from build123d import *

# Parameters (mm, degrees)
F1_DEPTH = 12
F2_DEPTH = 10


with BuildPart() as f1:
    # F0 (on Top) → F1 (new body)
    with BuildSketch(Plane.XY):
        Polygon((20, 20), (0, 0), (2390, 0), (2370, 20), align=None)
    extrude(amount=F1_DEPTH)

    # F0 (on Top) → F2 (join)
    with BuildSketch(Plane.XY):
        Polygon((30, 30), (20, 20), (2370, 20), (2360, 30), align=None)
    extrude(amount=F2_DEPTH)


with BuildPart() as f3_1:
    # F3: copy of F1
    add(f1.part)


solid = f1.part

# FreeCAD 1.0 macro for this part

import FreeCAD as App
import Part
import Sketcher
Q = App.Units.Quantity


def add_polygon(sketch, points):
    """Adds a closed chain of lines whose ends are joined by coincident constraints."""
    first, n = sketch.GeometryCount, len(points)
    for a, b in zip(points, points[1:] + points[:1]):
        sketch.addGeometry(Part.LineSegment(App.Vector(*a, 0), App.Vector(*b, 0)), False)
    for i in range(n):
        sketch.addConstraint(Sketcher.Constraint("Coincident", first + i, 2, first + (i + 1) % n, 1))

doc = App.newDocument("Part")
body = doc.addObject("PartDesign::Body", "Body")

# Sketch on XY plane
sketch1 = body.newObject("Sketcher::SketchObject", "Sketch")
sketch1.AttachmentSupport = (doc.getObject("XY_Plane"), [""])
sketch1.MapMode = "FlatFace"
add_polygon(sketch1, [(20, 20), (0, 0), (2390, 0), (2370, 20)])  # lines 0-3
sketch1.addConstraint([
    Sketcher.Constraint("Horizontal", 1),
    Sketcher.Constraint("Horizontal", 3),
    Sketcher.Constraint("Coincident", 0, 2, -1, 1),
    Sketcher.Constraint("Perpendicular", 0, 2),
    Sketcher.Constraint("Equal", 0, 2),
    Sketcher.Constraint("DistanceX", 1, 1, 1, 2, Q("2390 mm")),
    Sketcher.Constraint("DistanceX", 3, 2, 3, 1, Q("2350 mm")),
])
pad1 = body.newObject("PartDesign::Pad", "Pad")
pad1.Profile = sketch1
pad1.Length = 12

# Sketch on XY plane
sketch2 = body.newObject("Sketcher::SketchObject", "Sketch001")
sketch2.AttachmentSupport = (doc.getObject("XY_Plane"), [""])
sketch2.MapMode = "FlatFace"
add_polygon(sketch2, [(30, 30), (20, 20), (2370, 20), (2360, 30)])  # lines 0-3
sketch2.addConstraint([
    Sketcher.Constraint("Horizontal", 1),
    Sketcher.Constraint("Horizontal", 3),
    Sketcher.Constraint("Perpendicular", 0, 2),
    Sketcher.Constraint("Equal", 0, 2),
    Sketcher.Constraint("DistanceX", 1, 1, 1, 2, Q("2350 mm")),
    Sketcher.Constraint("DistanceX", 3, 2, 3, 1, Q("2330 mm")),
    Sketcher.Constraint("DistanceX", -1, 1, 0, 2, Q("20 mm")),
    Sketcher.Constraint("DistanceY", -1, 1, 0, 2, Q("20 mm")),
])
pad2 = body.newObject("PartDesign::Pad", "Pad001")
pad2.Profile = sketch2
pad2.Length = 10
body2 = doc.addObject("PartDesign::Body", "Body001")
doc.recompute()

body2.BaseFeature = body
doc.recompute()
body.Visibility = False

doc.recompute()
